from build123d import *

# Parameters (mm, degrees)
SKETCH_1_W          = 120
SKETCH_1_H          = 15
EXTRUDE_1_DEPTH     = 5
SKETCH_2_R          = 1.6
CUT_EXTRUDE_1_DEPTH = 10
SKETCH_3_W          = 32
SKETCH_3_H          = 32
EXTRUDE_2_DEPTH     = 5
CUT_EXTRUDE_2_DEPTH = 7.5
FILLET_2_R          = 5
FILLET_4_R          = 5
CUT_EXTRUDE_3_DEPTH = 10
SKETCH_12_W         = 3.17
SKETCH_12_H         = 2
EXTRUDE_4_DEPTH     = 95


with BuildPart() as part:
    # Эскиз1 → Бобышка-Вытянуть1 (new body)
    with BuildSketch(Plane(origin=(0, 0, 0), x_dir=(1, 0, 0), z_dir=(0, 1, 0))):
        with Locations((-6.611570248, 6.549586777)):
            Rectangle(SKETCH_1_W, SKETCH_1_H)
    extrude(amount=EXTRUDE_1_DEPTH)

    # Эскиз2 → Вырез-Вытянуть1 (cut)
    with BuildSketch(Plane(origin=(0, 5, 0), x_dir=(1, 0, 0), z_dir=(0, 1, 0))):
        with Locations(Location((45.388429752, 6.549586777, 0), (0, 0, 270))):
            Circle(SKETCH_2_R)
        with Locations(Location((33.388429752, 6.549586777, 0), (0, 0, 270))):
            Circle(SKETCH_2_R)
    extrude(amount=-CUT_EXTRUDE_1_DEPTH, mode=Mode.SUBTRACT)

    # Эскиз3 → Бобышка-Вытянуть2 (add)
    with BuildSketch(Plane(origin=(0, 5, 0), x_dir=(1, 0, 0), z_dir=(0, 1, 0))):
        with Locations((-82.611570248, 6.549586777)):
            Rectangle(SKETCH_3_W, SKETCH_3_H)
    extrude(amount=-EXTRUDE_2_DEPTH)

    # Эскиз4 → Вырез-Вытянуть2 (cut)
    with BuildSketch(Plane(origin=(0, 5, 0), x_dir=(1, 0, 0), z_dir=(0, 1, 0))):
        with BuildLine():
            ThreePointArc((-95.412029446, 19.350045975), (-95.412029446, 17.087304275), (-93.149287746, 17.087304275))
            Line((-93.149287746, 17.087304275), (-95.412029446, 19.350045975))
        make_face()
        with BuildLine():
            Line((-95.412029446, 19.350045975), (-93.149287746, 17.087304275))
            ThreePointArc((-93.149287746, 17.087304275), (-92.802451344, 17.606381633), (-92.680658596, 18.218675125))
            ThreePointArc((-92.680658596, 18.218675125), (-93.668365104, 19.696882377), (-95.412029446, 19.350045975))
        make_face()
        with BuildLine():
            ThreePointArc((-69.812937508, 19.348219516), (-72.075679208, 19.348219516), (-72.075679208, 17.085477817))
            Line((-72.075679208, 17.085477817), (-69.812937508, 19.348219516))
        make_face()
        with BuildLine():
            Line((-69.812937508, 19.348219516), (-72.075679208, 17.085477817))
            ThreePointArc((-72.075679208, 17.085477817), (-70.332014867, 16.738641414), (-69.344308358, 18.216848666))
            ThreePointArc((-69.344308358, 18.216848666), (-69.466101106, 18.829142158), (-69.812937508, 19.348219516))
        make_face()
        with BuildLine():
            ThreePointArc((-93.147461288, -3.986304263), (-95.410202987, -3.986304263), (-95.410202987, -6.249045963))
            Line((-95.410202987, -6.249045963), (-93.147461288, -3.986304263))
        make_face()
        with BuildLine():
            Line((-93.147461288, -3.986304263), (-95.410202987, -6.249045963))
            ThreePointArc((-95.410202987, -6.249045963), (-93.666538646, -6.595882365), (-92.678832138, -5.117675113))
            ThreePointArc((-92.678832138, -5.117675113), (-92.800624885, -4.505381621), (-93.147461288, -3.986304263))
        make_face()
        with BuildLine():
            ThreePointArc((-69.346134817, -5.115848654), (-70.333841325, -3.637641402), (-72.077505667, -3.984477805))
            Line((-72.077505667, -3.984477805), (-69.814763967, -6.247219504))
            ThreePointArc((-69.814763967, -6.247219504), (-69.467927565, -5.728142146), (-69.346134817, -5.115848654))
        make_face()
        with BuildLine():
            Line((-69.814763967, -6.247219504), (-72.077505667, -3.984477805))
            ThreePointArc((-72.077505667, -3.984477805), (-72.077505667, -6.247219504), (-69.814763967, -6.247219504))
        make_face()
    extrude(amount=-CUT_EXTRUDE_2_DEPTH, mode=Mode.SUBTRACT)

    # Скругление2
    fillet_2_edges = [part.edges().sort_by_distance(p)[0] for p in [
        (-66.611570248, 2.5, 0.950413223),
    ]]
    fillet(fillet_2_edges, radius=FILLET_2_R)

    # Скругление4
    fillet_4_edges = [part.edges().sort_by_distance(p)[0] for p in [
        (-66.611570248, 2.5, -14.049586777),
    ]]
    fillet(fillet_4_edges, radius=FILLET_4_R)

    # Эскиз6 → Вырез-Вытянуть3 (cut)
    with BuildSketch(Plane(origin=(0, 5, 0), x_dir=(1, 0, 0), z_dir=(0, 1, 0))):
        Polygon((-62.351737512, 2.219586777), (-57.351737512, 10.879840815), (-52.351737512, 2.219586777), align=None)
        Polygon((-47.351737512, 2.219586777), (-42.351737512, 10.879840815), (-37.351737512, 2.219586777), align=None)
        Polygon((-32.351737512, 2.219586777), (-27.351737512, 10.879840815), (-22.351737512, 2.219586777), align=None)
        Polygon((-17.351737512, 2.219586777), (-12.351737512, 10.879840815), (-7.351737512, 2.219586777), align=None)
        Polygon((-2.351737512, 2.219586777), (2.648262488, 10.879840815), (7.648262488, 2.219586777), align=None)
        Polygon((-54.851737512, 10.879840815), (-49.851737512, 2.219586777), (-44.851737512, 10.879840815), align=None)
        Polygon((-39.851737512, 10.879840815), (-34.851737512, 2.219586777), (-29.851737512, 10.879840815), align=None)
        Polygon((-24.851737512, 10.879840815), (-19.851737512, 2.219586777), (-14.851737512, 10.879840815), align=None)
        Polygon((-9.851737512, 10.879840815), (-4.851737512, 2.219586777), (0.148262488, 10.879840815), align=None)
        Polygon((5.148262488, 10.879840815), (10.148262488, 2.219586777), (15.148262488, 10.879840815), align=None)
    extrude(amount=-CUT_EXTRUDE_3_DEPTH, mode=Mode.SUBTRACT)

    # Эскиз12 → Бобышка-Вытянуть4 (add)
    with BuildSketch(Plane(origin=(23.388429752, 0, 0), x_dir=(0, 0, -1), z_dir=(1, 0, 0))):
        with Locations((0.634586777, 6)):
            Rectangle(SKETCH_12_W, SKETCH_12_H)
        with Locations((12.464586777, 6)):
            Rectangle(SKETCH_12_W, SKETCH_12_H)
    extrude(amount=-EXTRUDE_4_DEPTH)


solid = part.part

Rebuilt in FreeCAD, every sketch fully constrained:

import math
import FreeCAD as App
import Part
import Sketcher
from FreeCAD import Vector
Q = App.Units.Quantity


def edges_at(feature, points):
    """Names of the edges that pass closest to the given points."""
    edges = feature.Shape.Edges
    near = lambda p: min(range(len(edges)), key=lambda i: edges[i].distToShape(Part.Vertex(*p))[0])
    return sorted({f"Edge{near(p) + 1}" for p in points})


def add_polygon(sketch, points):
    """Adds a closed chain of lines whose ends are joined by coincident constraints."""
    first, n = sketch.GeometryCount, len(points)
    for a, b in zip(points, points[1:] + points[:1]):
        sketch.addGeometry(Part.LineSegment(App.Vector(*a, 0), App.Vector(*b, 0)), False)
    for i in range(n):
        sketch.addConstraint(Sketcher.Constraint("Coincident", first + i, 2, first + (i + 1) % n, 1))

doc = App.newDocument("Part")
body = doc.addObject("PartDesign::Body", "Body")

# Sketch on XZ plane
sketch1 = body.newObject("Sketcher::SketchObject", "Sketch")
sketch1.AttachmentSupport = (doc.getObject("XZ_Plane"), [""])
sketch1.MapMode = "FlatFace"
add_polygon(sketch1, [(-67, -14), (-67, 1), (53, 1), (53, -14)])  # lines 0-3
sketch1.addConstraint([
    Sketcher.Constraint("Vertical", 0),
    Sketcher.Constraint("Horizontal", 1),
    Sketcher.Constraint("Vertical", 2),
    Sketcher.Constraint("Horizontal", 3),
    Sketcher.Constraint("DistanceX", 1, 1, 1, 2, 120.0),
    Sketcher.Constraint("DistanceY", 0, 1, 0, 2, 15.0),
    Sketcher.Constraint("DistanceX", 0, 2, -1, 1, 66.61157),
    Sketcher.Constraint("DistanceY", -1, 1, 0, 2, 0.950413),
])
pad1 = body.newObject("PartDesign::Pad", "Pad")
pad1.Profile = sketch1
pad1.Length = 5
pad1.Reversed = True

# Sketch on XZ plane
sketch2 = body.newObject("Sketcher::SketchObject", "Sketch001")
sketch2.AttachmentSupport = (doc.getObject("XZ_Plane"), [""])
sketch2.MapMode = "FlatFace"
sketch2.AttachmentOffset = App.Placement(Vector(0, 0, -5), App.Rotation())
sketch2.addGeometry([
    Part.Circle(Vector(45.4, -6.5, 0), Vector(0, 0, 1), 1.6),
    Part.Circle(Vector(33.4, -6.5, 0), Vector(0, 0, 1), 1.6),
], False)
sketch2.addConstraint([
    Sketcher.Constraint("Equal", 0, 1),
    Sketcher.Constraint("Horizontal", 0, 3, 1, 3),
    Sketcher.Constraint("Diameter", 0, 3.2),
    Sketcher.Constraint("DistanceX", 1, 3, 0, 3, 12.0),
    Sketcher.Constraint("DistanceX", -1, 1, 0, 3, 45.38843),
    Sketcher.Constraint("DistanceY", 0, 3, -1, 1, 6.549587),
])
pocket1 = body.newObject("PartDesign::Pocket", "Pocket")
pocket1.Profile = sketch2
pocket1.Length = 10
pocket1.Reversed = True

# Sketch on XZ plane
sketch3 = body.newObject("Sketcher::SketchObject", "Sketch002")
sketch3.AttachmentSupport = (doc.getObject("XZ_Plane"), [""])
sketch3.MapMode = "FlatFace"
sketch3.AttachmentOffset = App.Placement(Vector(0, 0, -5), App.Rotation())
add_polygon(sketch3, [(-99, -23), (-99, 9), (-67, 9), (-67, -23)])  # lines 0-3
sketch3.addConstraint([
    Sketcher.Constraint("Vertical", 0),
    Sketcher.Constraint("Horizontal", 1),
    Sketcher.Constraint("Vertical", 2),
    Sketcher.Constraint("Horizontal", 3),
    Sketcher.Constraint("Equal", 3, 0),
    Sketcher.Constraint("DistanceX", 1, 1, 1, 2, 32.0),
    Sketcher.Constraint("DistanceX", 0, 2, -1, 1, 98.61157),
    Sketcher.Constraint("DistanceY", -1, 1, 0, 2, 9.450413),
])
pad2 = body.newObject("PartDesign::Pad", "Pad001")
pad2.Profile = sketch3
pad2.Length = 5

# Sketch on XZ plane
sketch4 = body.newObject("Sketcher::SketchObject", "Sketch003")
sketch4.AttachmentSupport = (doc.getObject("XZ_Plane"), [""])
sketch4.MapMode = "FlatFace"
sketch4.AttachmentOffset = App.Placement(Vector(0, 0, -5), App.Rotation())
sketch4.addGeometry([
    Part.ArcOfCircle(Part.Circle(Vector(-94.3, -18.2, 0), Vector(0, 0, 1), 1.6), math.radians(45), math.radians(225)),  # 0
    Part.ArcOfCircle(Part.Circle(Vector(-94.3, -18.2, 0), Vector(0, 0, 1), 1.6), math.radians(0), math.radians(45)),  # 1
    Part.ArcOfCircle(Part.Circle(Vector(-94.3, -18.2, 0), Vector(0, 0, 1), 1.6), math.radians(-135), math.radians(0)),  # 2
    Part.ArcOfCircle(Part.Circle(Vector(-70.9, -18.2, 0), Vector(0, 0, 1), 1.6), math.radians(135), math.radians(315)),  # 3
    Part.ArcOfCircle(Part.Circle(Vector(-70.9, -18.2, 0), Vector(0, 0, 1), 1.6), math.radians(0), math.radians(135)),  # 4
    Part.ArcOfCircle(Part.Circle(Vector(-70.9, -18.2, 0), Vector(0, 0, 1), 1.6), math.radians(-45), math.radians(0)),  # 5
    Part.ArcOfCircle(Part.Circle(Vector(-94.3, 5.1, 0), Vector(0, 0, 1), 1.6), math.radians(135), math.radians(315)),  # 6
    Part.ArcOfCircle(Part.Circle(Vector(-94.3, 5.1, 0), Vector(0, 0, 1), 1.6), math.radians(0), math.radians(135)),  # 7
    Part.ArcOfCircle(Part.Circle(Vector(-94.3, 5.1, 0), Vector(0, 0, 1), 1.6), math.radians(-45), math.radians(0)),  # 8
    Part.ArcOfCircle(Part.Circle(Vector(-70.9, 5.1, 0), Vector(0, 0, 1), 1.6), math.radians(-135), math.radians(0)),  # 9
    Part.ArcOfCircle(Part.Circle(Vector(-70.9, 5.1, 0), Vector(0, 0, 1), 1.6), math.radians(45), math.radians(225)),  # 10
    Part.ArcOfCircle(Part.Circle(Vector(-70.9, 5.1, 0), Vector(0, 0, 1), 1.6), math.radians(0), math.radians(45)),  # 11
], False)
sketch4.addConstraint([
    Sketcher.Constraint("Tangent", 0, 1, 1, 2),
    Sketcher.Constraint("Tangent", 1, 1, 2, 2),
    Sketcher.Constraint("Tangent", 2, 1, 0, 2),
    Sketcher.Constraint("Tangent", 3, 1, 4, 2),
    Sketcher.Constraint("Tangent", 4, 1, 5, 2),
    Sketcher.Constraint("Tangent", 5, 1, 3, 2),
    Sketcher.Constraint("Tangent", 6, 1, 7, 2),
    Sketcher.Constraint("Tangent", 7, 1, 8, 2),
    Sketcher.Constraint("Tangent", 8, 1, 6, 2),
    Sketcher.Constraint("Tangent", 9, 1, 10, 2),
    Sketcher.Constraint("Tangent", 10, 1, 11, 2),
    Sketcher.Constraint("Tangent", 11, 1, 9, 2),
    Sketcher.Constraint("Equal", 2, 3),
    Sketcher.Constraint("Equal", 5, 6),
    Sketcher.Constraint("Equal", 8, 9),
    Sketcher.Constraint("Horizontal", 2, 3, 1, 1),
    Sketcher.Constraint("Horizontal", 5, 3, 4, 1),
    Sketcher.Constraint("Horizontal", 8, 3, 7, 1),
    Sketcher.Constraint("Horizontal", 10, 3, 11, 1),
    Sketcher.Constraint("Radius", 0, 1.6),
    Sketcher.Constraint("DistanceX", 0, 3, -1, 1, 94.280659),
    Sketcher.Constraint("DistanceX", 3, 3, -1, 1, 70.944308),
    Sketcher.Constraint("DistanceY", 3, 3, -1, 1, 18.216849),
    Sketcher.Constraint("DistanceY", -1, 1, 9, 3, 5.115849),
    Sketcher.Constraint("DistanceX", 2, 1, -1, 1, 95.412029),
    Sketcher.Constraint("DistanceX", 3, 1, -1, 1, 72.075679),
    Sketcher.Constraint("DistanceY", 5, 1, -1, 1, 19.34822),
    Sketcher.Constraint("DistanceX", 8, 1, -1, 1, 93.147461),
    Sketcher.Constraint("DistanceY", -1, 1, 10, 1, 6.24722),
    Sketcher.Constraint("DistanceY", 0, 3, 6, 3, 23.33635),
    Sketcher.Constraint("DistanceX", 0, 3, 0, 1, 1.131371),
    Sketcher.Constraint("DistanceX", 6, 1, 6, 3, 1.131371),
    Sketcher.Constraint("DistanceX", 6, 1, 10, 3, 24.464068),
    Sketcher.Constraint("DistanceX", 8, 1, 7, 1, 0.468629),
    Sketcher.Constraint("DistanceX", 9, 1, 9, 3, 1.131371),
    Sketcher.Constraint("DistanceY", 0, 3, -1, 1, 18.218675),
])
pocket2 = body.newObject("PartDesign::Pocket", "Pocket001")
pocket2.Profile = sketch4
pocket2.Length = 7.5
pocket2.Reversed = True
doc.recompute()

fillet = body.newObject("PartDesign::Fillet", "Fillet")
fillet.Base = (pocket2, edges_at(pocket2, [(-66.612, 2.5, 0.95)]))
fillet.Radius = 5
doc.recompute()

fillet2 = body.newObject("PartDesign::Fillet", "Fillet001")
fillet2.Base = (fillet, edges_at(fillet, [(-66.612, 2.5, -14.05)]))
fillet2.Radius = 5

# Sketch on XZ plane
sketch5 = body.newObject("Sketcher::SketchObject", "Sketch004")
sketch5.AttachmentSupport = (doc.getObject("XZ_Plane"), [""])
sketch5.MapMode = "FlatFace"
sketch5.AttachmentOffset = App.Placement(Vector(0, 0, -5), App.Rotation())
add_polygon(sketch5, [(-57, -11), (-62, -2), (-52, -2)])  # lines 0-2
add_polygon(sketch5, [(-42, -11), (-47, -2), (-37, -2)])  # lines 3-5
add_polygon(sketch5, [(-27, -11), (-32, -2), (-22, -2)])  # lines 6-8
add_polygon(sketch5, [(-12, -11), (-17, -2), (-7, -2)])  # lines 9-11
add_polygon(sketch5, [(3, -11), (-2, -2), (8, -2)])  # lines 12-14
add_polygon(sketch5, [(-55, -11), (-50, -2), (-45, -11)])  # lines 15-17
add_polygon(sketch5, [(-40, -11), (-35, -2), (-30, -11)])  # lines 18-20
add_polygon(sketch5, [(-25, -11), (-20, -2), (-15, -11)])  # lines 21-23
add_polygon(sketch5, [(-10, -11), (-5, -2), (0, -11)])  # lines 24-26
add_polygon(sketch5, [(5, -11), (10, -2), (15, -11)])  # lines 27-29
sketch5.addConstraint([
    Sketcher.Constraint("Horizontal", 1),
    Sketcher.Constraint("Horizontal", 4),
    Sketcher.Constraint("Horizontal", 7),
    Sketcher.Constraint("Horizontal", 10),
    Sketcher.Constraint("Horizontal", 13),
    Sketcher.Constraint("Horizontal", 17),
    Sketcher.Constraint("Horizontal", 20),
    Sketcher.Constraint("Horizontal", 23),
    Sketcher.Constraint("Horizontal", 26),
    Sketcher.Constraint("Horizontal", 29),
    Sketcher.Constraint("Parallel", 0, 3),
    Sketcher.Constraint("Parallel", 2, 5),
    Sketcher.Constraint("Parallel", 3, 6),
    Sketcher.Constraint("Parallel", 5, 8),
    Sketcher.Constraint("Parallel", 6, 9),
    Sketcher.Constraint("Parallel", 8, 11),
    Sketcher.Constraint("Parallel", 9, 12),
    Sketcher.Constraint("Parallel", 11, 14),
    Sketcher.Constraint("Parallel", 14, 15),
    Sketcher.Constraint("Parallel", 12, 16),
    Sketcher.Constraint("Parallel", 15, 18),
    Sketcher.Constraint("Parallel", 16, 19),
    Sketcher.Constraint("Parallel", 18, 21),
    Sketcher.Constraint("Parallel", 19, 22),
    Sketcher.Constraint("Parallel", 21, 24),
    Sketcher.Constraint("Parallel", 22, 25),
    Sketcher.Constraint("Parallel", 24, 27),
    Sketcher.Constraint("Parallel", 25, 28),
    Sketcher.Constraint("Horizontal", 1, 2, 3, 2),
    Sketcher.Constraint("Horizontal", 2, 2, 5, 2),
    Sketcher.Constraint("Horizontal", 4, 2, 6, 2),
    Sketcher.Constraint("Horizontal", 5, 2, 8, 2),
    Sketcher.Constraint("Horizontal", 7, 2, 9, 2),
    Sketcher.Constraint("Horizontal", 8, 2, 11, 2),
    Sketcher.Constraint("Horizontal", 10, 2, 12, 2),
    Sketcher.Constraint("Horizontal", 11, 2, 14, 2),
    Sketcher.Constraint("Horizontal", 13, 2, 15, 2),
    Sketcher.Constraint("Horizontal", 14, 2, 16, 2),
    Sketcher.Constraint("Horizontal", 15, 2, 18, 2),
    Sketcher.Constraint("Horizontal", 17, 2, 19, 2),
    Sketcher.Constraint("Horizontal", 18, 2, 21, 2),
    Sketcher.Constraint("Horizontal", 20, 2, 22, 2),
    Sketcher.Constraint("Horizontal", 21, 2, 24, 2),
    Sketcher.Constraint("Horizontal", 23, 2, 25, 2),
    Sketcher.Constraint("Horizontal", 24, 2, 27, 2),
    Sketcher.Constraint("Horizontal", 26, 2, 28, 2),
    Sketcher.Constraint("Equal", 0, 2),
    Sketcher.Constraint("DistanceX", 1, 1, 1, 2, 10.0),
    Sketcher.Constraint("Angle", 0, Q("120 deg")),
    Sketcher.Constraint("DistanceX", 1, 2, 3, 2, 5.0),
    Sketcher.Constraint("DistanceX", 4, 2, 6, 2, 5.0),
    Sketcher.Constraint("DistanceX", 7, 2, 9, 2, 5.0),
    Sketcher.Constraint("DistanceX", 10, 2, 12, 2, 5.0),
    Sketcher.Constraint("DistanceX", 16, 2, 20, 2, 5.0),
    Sketcher.Constraint("DistanceX", 19, 2, 23, 2, 5.0),
    Sketcher.Constraint("DistanceX", 22, 2, 26, 2, 5.0),
    Sketcher.Constraint("DistanceX", 25, 2, 27, 2, 10.0),
    Sketcher.Constraint("DistanceX", 1, 2, 15, 2, 2.5),
    Sketcher.Constraint("DistanceY", 2, 2, -1, 1, 10.879841),
    Sketcher.Constraint("DistanceX", 0, 2, -1, 1, 62.351738),
])
pocket3 = body.newObject("PartDesign::Pocket", "Pocket002")
pocket3.Profile = sketch5
pocket3.Length = 10
pocket3.Reversed = True

# Sketch on YZ plane
sketch6 = body.newObject("Sketcher::SketchObject", "Sketch005")
sketch6.AttachmentSupport = (doc.getObject("YZ_Plane"), [""])
sketch6.MapMode = "FlatFace"
sketch6.AttachmentOffset = App.Placement(Vector(0, 0, 23.38843), App.Rotation())
add_polygon(sketch6, [(7, 1), (5, 1), (5, -2.2), (7, -2.2)])  # lines 0-3
add_polygon(sketch6, [(7, -10.9), (5, -10.9), (5, -14), (7, -14)])  # lines 4-7
sketch6.addConstraint([
    Sketcher.Constraint("Horizontal", 0),
    Sketcher.Constraint("Vertical", 1),
    Sketcher.Constraint("Horizontal", 2),
    Sketcher.Constraint("Vertical", 3),
    Sketcher.Constraint("Horizontal", 4),
    Sketcher.Constraint("Vertical", 5),
    Sketcher.Constraint("Horizontal", 6),
    Sketcher.Constraint("Vertical", 7),
    Sketcher.Constraint("Vertical", 1, 2, 4, 2),
    Sketcher.Constraint("Vertical", 3, 2, 6, 2),
    Sketcher.Constraint("Equal", 3, 5),
    Sketcher.Constraint("DistanceX", 0, 2, 0, 1, 2.0),
    Sketcher.Constraint("DistanceX", -1, 1, 0, 2, 5.0),
    Sketcher.Constraint("DistanceY", 5, 2, 0, 2, 15.0),
    Sketcher.Constraint("DistanceY", 1, 2, 1, 1, 3.17),
    Sketcher.Constraint("DistanceY", -1, 1, 0, 2, 0.950413),
])
pad3 = body.newObject("PartDesign::Pad", "Pad002")
pad3.Profile = sketch6
pad3.Length = 95
pad3.Reversed = True

doc.recompute()
